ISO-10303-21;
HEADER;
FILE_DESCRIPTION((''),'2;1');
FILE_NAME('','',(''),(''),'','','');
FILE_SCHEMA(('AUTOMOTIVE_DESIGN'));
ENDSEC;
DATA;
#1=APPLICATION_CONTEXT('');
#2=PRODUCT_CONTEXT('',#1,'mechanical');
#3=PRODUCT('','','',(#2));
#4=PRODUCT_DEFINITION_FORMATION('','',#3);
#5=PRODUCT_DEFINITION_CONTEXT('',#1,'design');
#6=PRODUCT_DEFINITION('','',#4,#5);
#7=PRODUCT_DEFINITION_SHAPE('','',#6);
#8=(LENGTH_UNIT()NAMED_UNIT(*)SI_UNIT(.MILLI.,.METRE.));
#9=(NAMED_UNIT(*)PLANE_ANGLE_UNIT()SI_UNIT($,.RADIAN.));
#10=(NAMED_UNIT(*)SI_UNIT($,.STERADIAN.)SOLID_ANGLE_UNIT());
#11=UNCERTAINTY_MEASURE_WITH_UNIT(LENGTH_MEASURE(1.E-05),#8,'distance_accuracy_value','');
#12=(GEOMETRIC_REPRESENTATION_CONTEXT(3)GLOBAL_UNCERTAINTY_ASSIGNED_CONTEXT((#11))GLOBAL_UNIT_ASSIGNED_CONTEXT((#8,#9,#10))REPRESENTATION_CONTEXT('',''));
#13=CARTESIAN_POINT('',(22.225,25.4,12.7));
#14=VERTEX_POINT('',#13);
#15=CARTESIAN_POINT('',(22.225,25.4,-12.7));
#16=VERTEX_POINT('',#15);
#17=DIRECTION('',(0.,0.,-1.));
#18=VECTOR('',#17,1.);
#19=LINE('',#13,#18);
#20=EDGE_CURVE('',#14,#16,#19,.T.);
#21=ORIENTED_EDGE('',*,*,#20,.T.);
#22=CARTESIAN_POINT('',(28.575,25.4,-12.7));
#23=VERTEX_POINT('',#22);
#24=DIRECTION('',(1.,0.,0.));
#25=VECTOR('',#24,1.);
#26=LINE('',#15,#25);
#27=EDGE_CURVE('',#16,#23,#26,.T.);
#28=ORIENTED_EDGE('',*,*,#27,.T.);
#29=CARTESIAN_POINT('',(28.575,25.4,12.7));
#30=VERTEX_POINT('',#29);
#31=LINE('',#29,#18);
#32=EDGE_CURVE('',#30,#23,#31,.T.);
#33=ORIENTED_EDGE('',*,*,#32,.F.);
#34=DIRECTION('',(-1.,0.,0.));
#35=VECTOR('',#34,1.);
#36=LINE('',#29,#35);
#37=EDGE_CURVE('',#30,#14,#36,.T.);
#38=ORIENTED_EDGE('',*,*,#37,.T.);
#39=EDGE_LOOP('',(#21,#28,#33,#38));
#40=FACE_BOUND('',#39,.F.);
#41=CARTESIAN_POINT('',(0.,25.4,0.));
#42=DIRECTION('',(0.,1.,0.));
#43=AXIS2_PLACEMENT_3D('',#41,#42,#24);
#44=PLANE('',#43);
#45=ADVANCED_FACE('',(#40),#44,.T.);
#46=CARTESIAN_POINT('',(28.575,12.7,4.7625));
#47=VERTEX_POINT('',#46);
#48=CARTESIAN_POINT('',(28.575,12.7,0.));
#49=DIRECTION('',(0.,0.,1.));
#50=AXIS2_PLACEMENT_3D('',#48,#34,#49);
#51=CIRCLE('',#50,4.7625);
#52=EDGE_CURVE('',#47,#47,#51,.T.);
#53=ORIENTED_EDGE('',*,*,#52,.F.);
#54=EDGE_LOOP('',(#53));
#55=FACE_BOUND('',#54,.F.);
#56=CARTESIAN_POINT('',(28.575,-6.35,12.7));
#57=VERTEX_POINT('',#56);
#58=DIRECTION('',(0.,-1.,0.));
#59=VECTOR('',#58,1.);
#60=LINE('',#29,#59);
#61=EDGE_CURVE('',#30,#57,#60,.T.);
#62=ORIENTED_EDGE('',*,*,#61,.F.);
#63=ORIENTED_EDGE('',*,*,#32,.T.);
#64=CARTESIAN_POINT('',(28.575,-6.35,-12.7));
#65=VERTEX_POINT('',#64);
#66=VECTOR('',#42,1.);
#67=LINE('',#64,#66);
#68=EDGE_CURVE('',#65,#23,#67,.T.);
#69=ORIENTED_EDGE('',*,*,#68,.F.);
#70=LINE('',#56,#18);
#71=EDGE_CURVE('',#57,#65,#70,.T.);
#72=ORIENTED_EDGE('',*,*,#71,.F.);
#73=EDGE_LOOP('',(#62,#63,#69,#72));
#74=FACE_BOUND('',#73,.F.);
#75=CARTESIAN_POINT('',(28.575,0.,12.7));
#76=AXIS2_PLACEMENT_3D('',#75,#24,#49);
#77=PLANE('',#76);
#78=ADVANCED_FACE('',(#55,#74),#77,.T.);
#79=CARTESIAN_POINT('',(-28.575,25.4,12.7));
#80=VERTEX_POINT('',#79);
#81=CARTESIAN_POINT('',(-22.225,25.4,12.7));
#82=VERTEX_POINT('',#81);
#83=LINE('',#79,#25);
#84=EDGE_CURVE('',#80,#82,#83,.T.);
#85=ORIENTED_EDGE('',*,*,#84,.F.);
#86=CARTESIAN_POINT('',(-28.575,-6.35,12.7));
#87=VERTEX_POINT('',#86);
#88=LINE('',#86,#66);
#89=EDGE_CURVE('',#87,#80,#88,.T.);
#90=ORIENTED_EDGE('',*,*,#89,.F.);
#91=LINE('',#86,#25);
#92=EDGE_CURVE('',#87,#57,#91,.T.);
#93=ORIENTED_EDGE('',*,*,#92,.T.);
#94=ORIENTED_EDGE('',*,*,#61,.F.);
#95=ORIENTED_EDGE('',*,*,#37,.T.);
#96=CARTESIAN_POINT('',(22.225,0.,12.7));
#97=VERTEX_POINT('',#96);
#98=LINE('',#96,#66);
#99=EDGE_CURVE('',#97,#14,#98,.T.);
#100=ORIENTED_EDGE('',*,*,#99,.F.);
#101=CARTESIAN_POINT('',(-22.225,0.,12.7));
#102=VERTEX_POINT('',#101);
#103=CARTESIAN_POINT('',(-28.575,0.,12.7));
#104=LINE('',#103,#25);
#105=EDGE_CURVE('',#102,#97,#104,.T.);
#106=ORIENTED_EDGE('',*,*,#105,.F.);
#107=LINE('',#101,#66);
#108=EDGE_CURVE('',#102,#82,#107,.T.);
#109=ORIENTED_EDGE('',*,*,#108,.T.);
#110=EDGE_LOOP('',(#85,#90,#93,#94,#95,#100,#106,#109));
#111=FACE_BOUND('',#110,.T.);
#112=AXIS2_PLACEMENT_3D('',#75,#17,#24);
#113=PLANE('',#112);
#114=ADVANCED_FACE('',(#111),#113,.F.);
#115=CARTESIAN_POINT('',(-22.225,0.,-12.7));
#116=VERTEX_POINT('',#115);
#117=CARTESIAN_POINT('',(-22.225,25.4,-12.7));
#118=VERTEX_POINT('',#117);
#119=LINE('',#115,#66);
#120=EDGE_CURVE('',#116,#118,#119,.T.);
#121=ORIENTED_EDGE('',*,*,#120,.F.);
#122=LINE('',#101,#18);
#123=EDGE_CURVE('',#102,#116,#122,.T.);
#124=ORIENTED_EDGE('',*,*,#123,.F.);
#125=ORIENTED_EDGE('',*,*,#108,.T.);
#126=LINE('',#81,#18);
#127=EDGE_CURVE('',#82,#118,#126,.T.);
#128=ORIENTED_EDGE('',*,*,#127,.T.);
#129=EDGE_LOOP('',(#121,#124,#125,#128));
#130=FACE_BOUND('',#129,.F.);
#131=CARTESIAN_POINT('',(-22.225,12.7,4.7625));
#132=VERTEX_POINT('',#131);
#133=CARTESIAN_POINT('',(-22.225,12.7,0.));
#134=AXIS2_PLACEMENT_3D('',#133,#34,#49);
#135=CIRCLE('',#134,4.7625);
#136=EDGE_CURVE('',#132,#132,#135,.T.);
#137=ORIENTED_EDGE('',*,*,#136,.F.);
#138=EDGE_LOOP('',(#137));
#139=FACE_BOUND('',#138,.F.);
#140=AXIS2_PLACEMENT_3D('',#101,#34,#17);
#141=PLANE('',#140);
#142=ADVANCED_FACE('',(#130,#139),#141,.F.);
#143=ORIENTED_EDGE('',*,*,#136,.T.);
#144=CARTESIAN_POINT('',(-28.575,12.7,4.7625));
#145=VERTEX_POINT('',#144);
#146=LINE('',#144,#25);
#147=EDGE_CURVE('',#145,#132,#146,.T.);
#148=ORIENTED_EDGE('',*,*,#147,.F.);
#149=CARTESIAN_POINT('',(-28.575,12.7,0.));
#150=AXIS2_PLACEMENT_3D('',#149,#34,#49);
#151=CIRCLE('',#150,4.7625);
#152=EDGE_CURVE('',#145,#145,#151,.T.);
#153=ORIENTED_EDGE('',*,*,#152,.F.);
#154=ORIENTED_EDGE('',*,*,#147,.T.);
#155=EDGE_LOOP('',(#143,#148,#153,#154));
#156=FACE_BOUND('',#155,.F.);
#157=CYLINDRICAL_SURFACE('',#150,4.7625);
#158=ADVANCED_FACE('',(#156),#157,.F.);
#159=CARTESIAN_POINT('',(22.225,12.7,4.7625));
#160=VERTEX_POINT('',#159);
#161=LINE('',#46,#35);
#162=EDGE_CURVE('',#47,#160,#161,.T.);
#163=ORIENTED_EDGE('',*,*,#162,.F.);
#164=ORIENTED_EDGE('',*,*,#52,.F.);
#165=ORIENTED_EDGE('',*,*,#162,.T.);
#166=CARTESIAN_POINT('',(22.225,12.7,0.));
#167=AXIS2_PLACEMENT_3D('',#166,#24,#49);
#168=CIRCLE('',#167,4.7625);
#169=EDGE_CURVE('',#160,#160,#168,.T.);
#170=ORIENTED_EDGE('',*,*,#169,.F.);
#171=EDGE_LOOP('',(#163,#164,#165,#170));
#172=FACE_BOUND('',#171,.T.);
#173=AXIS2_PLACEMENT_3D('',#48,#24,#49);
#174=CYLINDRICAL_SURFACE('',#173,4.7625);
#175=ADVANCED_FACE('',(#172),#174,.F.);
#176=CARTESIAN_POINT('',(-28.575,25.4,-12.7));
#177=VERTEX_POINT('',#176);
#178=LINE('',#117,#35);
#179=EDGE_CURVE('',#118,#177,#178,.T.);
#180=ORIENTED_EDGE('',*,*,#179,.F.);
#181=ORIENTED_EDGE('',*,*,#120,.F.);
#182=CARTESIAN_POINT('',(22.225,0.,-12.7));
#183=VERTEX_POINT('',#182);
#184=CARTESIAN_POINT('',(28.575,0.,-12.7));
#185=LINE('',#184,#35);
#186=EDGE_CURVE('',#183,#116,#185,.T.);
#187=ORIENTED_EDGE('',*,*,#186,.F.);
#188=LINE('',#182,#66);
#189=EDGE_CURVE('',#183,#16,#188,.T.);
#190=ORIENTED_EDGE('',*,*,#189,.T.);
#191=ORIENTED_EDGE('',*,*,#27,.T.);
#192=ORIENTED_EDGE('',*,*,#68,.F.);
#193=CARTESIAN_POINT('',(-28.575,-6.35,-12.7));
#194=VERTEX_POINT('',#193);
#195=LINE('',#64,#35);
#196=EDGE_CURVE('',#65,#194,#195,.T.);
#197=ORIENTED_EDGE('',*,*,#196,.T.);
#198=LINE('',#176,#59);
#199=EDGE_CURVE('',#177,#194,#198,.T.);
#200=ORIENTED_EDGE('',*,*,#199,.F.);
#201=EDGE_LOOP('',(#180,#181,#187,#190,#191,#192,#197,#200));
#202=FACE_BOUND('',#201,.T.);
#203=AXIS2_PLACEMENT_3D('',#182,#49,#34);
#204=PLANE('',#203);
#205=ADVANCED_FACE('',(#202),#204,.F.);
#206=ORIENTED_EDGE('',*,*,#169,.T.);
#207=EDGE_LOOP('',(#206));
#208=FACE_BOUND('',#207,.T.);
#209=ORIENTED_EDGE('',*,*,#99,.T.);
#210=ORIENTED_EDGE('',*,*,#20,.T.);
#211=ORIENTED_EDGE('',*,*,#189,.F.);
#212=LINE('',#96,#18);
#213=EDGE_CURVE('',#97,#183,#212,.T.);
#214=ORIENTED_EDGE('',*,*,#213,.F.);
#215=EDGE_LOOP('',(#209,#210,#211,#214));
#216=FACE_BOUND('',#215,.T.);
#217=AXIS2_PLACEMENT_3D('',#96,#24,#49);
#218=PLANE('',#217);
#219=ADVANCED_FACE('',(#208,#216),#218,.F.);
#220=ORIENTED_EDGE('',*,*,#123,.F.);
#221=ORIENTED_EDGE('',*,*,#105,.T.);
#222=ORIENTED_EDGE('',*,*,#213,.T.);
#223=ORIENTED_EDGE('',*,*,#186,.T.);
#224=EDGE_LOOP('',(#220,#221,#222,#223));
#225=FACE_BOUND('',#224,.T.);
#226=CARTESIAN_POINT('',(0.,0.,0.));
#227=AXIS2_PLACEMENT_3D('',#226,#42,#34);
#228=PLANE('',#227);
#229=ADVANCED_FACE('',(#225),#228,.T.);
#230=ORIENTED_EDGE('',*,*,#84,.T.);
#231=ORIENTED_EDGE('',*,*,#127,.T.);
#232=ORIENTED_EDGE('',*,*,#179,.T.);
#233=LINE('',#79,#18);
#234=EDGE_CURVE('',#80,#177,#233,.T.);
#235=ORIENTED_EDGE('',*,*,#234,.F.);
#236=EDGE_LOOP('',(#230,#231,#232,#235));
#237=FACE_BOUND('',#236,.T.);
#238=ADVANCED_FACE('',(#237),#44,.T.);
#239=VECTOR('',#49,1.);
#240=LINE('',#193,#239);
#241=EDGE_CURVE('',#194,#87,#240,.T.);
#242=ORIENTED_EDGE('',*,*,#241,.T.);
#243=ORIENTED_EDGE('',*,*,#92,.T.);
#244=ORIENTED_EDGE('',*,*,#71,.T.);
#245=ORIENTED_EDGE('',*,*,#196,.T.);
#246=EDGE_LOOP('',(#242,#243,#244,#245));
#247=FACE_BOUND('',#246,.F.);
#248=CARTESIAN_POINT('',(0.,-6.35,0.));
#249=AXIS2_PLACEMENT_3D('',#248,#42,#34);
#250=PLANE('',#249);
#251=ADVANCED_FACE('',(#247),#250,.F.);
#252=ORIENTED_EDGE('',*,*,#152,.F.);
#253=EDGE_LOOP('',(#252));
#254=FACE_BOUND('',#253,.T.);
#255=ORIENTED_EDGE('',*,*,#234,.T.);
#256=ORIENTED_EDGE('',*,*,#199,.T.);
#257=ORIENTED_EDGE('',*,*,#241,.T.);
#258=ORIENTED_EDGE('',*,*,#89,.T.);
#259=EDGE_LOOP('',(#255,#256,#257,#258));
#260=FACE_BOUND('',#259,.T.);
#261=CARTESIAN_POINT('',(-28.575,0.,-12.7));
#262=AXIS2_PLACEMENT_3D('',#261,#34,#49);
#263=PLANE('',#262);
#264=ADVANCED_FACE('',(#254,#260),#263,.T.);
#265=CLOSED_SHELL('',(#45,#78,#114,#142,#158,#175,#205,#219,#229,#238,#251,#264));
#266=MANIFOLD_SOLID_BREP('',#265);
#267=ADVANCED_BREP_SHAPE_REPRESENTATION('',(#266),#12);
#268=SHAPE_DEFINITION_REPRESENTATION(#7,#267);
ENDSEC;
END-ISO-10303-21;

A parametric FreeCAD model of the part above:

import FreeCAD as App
import Part
import Sketcher
Q = App.Units.Quantity


def add_polygon(sketch, points):
    """Adds a closed chain of lines whose ends are joined by coincident constraints."""
    first, n = sketch.GeometryCount, len(points)
    for a, b in zip(points, points[1:] + points[:1]):
        sketch.addGeometry(Part.LineSegment(App.Vector(*a, 0), App.Vector(*b, 0)), False)
    for i in range(n):
        sketch.addConstraint(Sketcher.Constraint("Coincident", first + i, 2, first + (i + 1) % n, 1))

doc = App.newDocument("Part")
params = doc.addObject("Spreadsheet::Sheet", "Params")
for row, (alias, value) in enumerate([
    ("sketch1_height", "1 in"),
    ("sketch1_width", "2.25 in"),
    ("pad1_length", "0.25 in"),
    ("sketch2_width", "0.25 in"),
    ("sketch2_height", "1 in"),
    ("pad2_length", "1 in"),
    ("sketch3_diameter", "0.375 in"),
], start=1):
    params.set(f"A{row}", alias)
    params.set(f"B{row}", "=" + value)
    params.setAlias(f"B{row}", alias)

body = doc.addObject("PartDesign::Body", "Body")

# Sketch on XZ plane
sketch1 = body.newObject("Sketcher::SketchObject", "Sketch")
sketch1.AttachmentSupport = (doc.getObject("XZ_Plane"), [""])
sketch1.MapMode = "FlatFace"
add_polygon(sketch1, [(-29, -13), (-29, 13), (29, 13), (29, -13)])  # lines 0-3
sketch1.addConstraint([
    Sketcher.Constraint("Vertical", 0),
    Sketcher.Constraint("Horizontal", 1),
    Sketcher.Constraint("Vertical", 2),
    Sketcher.Constraint("Horizontal", 3),
    Sketcher.Constraint("Symmetric", 0, 2, 2, 2, -1, 1),
    Sketcher.Constraint("DistanceY", 0, 1, 0, 2, Q("1 in")),
    Sketcher.Constraint("DistanceX", 1, 1, 1, 2, Q("2.25 in")),
])
sketch1.setExpression("Constraints[9]", "Params.sketch1_height")
sketch1.setExpression("Constraints[10]", "Params.sketch1_width")
pad1 = body.newObject("PartDesign::Pad", "Pad")
pad1.Profile = sketch1
pad1.setExpression("Length", "Params.pad1_length")

# Sketch on XZ plane
sketch2 = body.newObject("Sketcher::SketchObject", "Sketch001")
sketch2.AttachmentSupport = (doc.getObject("XZ_Plane"), [""])
sketch2.MapMode = "FlatFace"
add_polygon(sketch2, [(-29, -13), (-29, 13), (-22, 13), (-22, -13)])  # lines 0-3
sketch2.addConstraint([
    Sketcher.Constraint("Vertical", 0),
    Sketcher.Constraint("Horizontal", 1),
    Sketcher.Constraint("Vertical", 2),
    Sketcher.Constraint("Horizontal", 3),
    Sketcher.Constraint("DistanceX", 1, 1, 1, 2, Q("0.25 in")),
    Sketcher.Constraint("DistanceY", 0, 1, 0, 2, Q("1 in")),
    Sketcher.Constraint("DistanceY", -1, 1, 0, 2, Q("0.5 in")),
    Sketcher.Constraint("DistanceX", 0, 2, -1, 1, Q("1.125 in")),
])
sketch2.setExpression("Constraints[8]", "Params.sketch2_width")
sketch2.setExpression("Constraints[9]", "Params.sketch2_height")
pad2 = body.newObject("PartDesign::Pad", "Pad001")
pad2.Profile = sketch2
pad2.setExpression("Length", "Params.pad2_length")
pad2.Reversed = True

# Sketch on YZ plane
sketch3 = body.newObject("Sketcher::SketchObject", "Sketch002")
sketch3.AttachmentSupport = (doc.getObject("YZ_Plane"), [""])
sketch3.MapMode = "FlatFace"
sketch3.AttachmentOffset = App.Placement(App.Vector(0, 0, -1.125 * 25.4), App.Rotation())
sketch3.addGeometry(Part.Circle(App.Vector(12.7, 0, 0), App.Vector(0, 0, 1), 4.8), False)
sketch3.addConstraint([
    Sketcher.Constraint("PointOnObject", 0, 3, -1),
    Sketcher.Constraint("Diameter", 0, Q("0.375 in")),
    Sketcher.Constraint("DistanceX", -1, 1, 0, 3, Q("0.5 in")),
])
sketch3.setExpression("Constraints[1]", "Params.sketch3_diameter")
pocket1 = body.newObject("PartDesign::Pocket", "Pocket")
pocket1.Profile = sketch3
pocket1.Type = "ThroughAll"
pocket1.Reversed = True
doc.recompute()

mirrored = body.newObject("PartDesign::Mirrored", "Mirrored")
mirrored.Originals = [pad2, pocket1]
mirrored.MirrorPlane = (doc.getObject("YZ_Plane"), [""])
body.Tip = mirrored

doc.recompute()
